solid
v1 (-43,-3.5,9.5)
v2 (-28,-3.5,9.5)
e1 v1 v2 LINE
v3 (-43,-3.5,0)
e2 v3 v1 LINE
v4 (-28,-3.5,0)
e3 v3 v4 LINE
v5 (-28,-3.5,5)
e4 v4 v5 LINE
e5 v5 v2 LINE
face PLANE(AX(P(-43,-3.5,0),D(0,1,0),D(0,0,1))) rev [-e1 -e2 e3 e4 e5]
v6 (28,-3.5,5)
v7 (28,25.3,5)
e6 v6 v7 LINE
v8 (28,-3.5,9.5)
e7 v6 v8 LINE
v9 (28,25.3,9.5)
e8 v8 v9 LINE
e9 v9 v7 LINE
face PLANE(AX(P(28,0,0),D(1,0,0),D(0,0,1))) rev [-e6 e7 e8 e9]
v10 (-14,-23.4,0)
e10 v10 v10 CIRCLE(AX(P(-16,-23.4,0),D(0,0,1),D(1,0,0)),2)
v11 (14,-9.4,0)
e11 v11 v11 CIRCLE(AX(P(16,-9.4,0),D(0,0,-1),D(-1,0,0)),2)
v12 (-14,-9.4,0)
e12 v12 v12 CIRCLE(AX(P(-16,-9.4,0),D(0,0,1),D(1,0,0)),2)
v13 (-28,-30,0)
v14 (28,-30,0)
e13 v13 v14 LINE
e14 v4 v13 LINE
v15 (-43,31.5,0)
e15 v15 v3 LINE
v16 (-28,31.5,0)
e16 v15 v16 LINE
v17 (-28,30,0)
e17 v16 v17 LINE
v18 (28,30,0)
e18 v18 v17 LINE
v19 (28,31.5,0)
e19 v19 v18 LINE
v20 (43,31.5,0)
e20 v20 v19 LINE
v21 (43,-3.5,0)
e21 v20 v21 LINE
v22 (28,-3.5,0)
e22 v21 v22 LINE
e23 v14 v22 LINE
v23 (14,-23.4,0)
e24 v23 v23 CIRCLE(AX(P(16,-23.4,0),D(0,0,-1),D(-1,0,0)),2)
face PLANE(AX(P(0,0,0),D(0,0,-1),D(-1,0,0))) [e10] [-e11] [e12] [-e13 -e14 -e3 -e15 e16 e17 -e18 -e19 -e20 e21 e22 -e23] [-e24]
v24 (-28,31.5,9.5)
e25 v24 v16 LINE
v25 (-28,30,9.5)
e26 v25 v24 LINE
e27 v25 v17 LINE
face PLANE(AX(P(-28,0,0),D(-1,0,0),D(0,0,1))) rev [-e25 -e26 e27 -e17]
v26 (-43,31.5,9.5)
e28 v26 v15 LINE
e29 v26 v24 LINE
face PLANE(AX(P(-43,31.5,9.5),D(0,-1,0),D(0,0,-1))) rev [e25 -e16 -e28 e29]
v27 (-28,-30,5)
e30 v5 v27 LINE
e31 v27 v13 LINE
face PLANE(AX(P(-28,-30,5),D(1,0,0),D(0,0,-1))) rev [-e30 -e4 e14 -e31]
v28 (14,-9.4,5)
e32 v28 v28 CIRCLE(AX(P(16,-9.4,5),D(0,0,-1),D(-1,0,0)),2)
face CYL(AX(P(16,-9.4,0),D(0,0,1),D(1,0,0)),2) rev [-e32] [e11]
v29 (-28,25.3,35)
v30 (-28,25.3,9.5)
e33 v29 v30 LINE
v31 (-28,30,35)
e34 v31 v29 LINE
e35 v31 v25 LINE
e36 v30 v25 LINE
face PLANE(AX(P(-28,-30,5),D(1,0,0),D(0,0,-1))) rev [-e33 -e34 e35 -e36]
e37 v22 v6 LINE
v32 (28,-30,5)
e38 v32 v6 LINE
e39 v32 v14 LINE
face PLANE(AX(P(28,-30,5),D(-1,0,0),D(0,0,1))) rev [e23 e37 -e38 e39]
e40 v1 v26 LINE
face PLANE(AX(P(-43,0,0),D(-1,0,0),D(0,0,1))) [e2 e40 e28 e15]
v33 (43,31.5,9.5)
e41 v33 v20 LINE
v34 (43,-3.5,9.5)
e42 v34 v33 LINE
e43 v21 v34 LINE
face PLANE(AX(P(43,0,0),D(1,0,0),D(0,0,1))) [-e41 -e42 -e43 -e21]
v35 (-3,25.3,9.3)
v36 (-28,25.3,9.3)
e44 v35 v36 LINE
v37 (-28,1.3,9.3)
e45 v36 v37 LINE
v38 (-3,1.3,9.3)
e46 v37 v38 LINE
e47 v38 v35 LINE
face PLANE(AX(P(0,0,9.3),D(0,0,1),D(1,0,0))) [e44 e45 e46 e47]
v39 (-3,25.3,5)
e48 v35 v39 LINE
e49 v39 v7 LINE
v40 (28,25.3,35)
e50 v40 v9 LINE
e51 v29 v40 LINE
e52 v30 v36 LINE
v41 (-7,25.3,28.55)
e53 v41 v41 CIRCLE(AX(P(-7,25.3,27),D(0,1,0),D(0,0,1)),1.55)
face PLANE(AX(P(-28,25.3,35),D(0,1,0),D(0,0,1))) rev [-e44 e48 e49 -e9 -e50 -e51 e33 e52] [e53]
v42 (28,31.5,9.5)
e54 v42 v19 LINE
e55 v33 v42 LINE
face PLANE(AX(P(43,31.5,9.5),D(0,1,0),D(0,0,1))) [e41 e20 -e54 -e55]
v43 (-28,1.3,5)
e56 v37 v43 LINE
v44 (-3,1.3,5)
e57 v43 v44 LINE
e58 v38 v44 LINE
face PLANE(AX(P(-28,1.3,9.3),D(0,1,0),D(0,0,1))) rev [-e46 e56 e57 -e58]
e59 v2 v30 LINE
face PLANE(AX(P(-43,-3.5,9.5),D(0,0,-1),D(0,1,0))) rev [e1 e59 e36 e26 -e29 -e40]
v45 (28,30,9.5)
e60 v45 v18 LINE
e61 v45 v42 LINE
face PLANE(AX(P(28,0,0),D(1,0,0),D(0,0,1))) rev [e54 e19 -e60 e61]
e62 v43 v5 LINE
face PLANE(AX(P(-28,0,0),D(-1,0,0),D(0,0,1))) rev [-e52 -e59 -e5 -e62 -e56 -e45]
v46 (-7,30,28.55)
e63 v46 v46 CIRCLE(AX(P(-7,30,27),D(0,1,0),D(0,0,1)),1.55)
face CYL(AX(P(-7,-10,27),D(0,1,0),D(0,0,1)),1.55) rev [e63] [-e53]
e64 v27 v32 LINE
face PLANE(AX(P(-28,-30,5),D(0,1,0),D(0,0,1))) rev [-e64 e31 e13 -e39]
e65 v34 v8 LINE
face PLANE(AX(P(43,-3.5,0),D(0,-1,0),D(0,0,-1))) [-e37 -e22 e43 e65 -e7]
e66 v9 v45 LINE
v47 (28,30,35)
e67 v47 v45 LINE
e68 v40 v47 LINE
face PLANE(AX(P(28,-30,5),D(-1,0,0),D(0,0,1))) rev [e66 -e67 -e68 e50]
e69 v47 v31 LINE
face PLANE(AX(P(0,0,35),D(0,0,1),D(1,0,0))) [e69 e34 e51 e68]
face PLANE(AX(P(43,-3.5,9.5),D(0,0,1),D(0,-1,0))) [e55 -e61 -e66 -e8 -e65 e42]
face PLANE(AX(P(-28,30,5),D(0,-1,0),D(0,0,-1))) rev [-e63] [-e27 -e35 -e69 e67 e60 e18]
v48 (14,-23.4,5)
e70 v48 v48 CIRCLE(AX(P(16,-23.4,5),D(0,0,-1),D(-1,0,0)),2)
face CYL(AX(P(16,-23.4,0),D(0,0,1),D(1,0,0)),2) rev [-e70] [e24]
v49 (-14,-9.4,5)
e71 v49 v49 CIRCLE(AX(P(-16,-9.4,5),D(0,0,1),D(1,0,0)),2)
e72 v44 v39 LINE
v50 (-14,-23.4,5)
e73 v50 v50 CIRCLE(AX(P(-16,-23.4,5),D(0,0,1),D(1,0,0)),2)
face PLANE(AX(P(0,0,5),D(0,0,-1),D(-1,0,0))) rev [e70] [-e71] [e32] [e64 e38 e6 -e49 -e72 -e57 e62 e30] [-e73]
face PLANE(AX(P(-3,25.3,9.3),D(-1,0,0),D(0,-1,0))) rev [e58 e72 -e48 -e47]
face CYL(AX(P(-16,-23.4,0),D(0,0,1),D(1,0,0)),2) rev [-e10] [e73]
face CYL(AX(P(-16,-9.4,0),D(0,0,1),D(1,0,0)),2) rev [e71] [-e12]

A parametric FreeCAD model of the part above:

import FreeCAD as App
import Part
import Sketcher


def add_polygon(sketch, points):
    """Adds a closed chain of lines whose ends are joined by coincident constraints."""
    first, n = sketch.GeometryCount, len(points)
    for a, b in zip(points, points[1:] + points[:1]):
        sketch.addGeometry(Part.LineSegment(App.Vector(*a, 0), App.Vector(*b, 0)), False)
    for i in range(n):
        sketch.addConstraint(Sketcher.Constraint("Coincident", first + i, 2, first + (i + 1) % n, 1))

doc = App.newDocument("Part")
body = doc.addObject("PartDesign::Body", "Body")

sketch1 = body.newObject("Sketcher::SketchObject", "Sketch")
sketch1.AttachmentSupport = (doc.getObject("XY_Plane"), [""])
sketch1.MapMode = "FlatFace"
add_polygon(sketch1, [(-28, 30), (-28, -30), (28, -30), (28, 30)])
sketch1.addConstraint([
    Sketcher.Constraint("Vertical", 0),
    Sketcher.Constraint("Horizontal", 1),
    Sketcher.Constraint("Vertical", 2),
    Sketcher.Constraint("Horizontal", 3),
    Sketcher.Constraint("Symmetric", 0, 2, 2, 2, -1, 1),
    Sketcher.Constraint("DistanceX", 1, 1, 1, 2, 56.0),
    Sketcher.Constraint("DistanceY", 0, 2, 0, 1, 60.0),
])
pad1 = body.newObject("PartDesign::Pad", "Pad")
pad1.Profile = sketch1
pad1.Length = 5

sketch2 = body.newObject("Sketcher::SketchObject", "Sketch001")
sketch2.AttachmentSupport = (doc.getObject("XY_Plane"), [""])
sketch2.MapMode = "FlatFace"
sketch2.AttachmentOffset = App.Placement(App.Vector(0, 0, 5), App.Rotation())
sketch2.addGeometry([
    Part.Circle(App.Vector(-16, -23.4, 0), App.Vector(0, 0, 1), 2),
    Part.Circle(App.Vector(-16, -9.4, 0), App.Vector(0, 0, 1), 2),
], False)
sketch2.addConstraint([
    Sketcher.Constraint("Equal", 0, 1),
    Sketcher.Constraint("Vertical", 0, 3, 1, 3),
    Sketcher.Constraint("Diameter", 0, 4.0),
    Sketcher.Constraint("DistanceX", 0, 3, -1, 1, 16.0),
    Sketcher.Constraint("DistanceY", 0, 3, 1, 3, 14.0),
    Sketcher.Constraint("DistanceY", 0, 3, -1, 1, 23.4),
])
pocket1 = body.newObject("PartDesign::Pocket", "Pocket")
pocket1.Profile = sketch2
pocket1.Length = 5
doc.recompute()

mirrored = body.newObject("PartDesign::Mirrored", "Mirrored")
mirrored.Originals = [pocket1]
mirrored.MirrorPlane = (doc.getObject("YZ_Plane"), [""])
body.Tip = mirrored

sketch3 = body.newObject("Sketcher::SketchObject", "Sketch002")
sketch3.AttachmentSupport = (doc.getObject("XY_Plane"), [""])
sketch3.MapMode = "FlatFace"
sketch3.AttachmentOffset = App.Placement(App.Vector(0, 0, 5), App.Rotation())
add_polygon(sketch3, [(-28, 30), (-28, 25.3), (28, 25.3), (28, 30)])
sketch3.addConstraint([
    Sketcher.Constraint("Vertical", 0),
    Sketcher.Constraint("Horizontal", 1),
    Sketcher.Constraint("Vertical", 2),
    Sketcher.Constraint("Horizontal", 3),
    Sketcher.Constraint("DistanceX", 1, 1, 1, 2, 56.0),
    Sketcher.Constraint("DistanceY", 0, 2, 0, 1, 4.7),
    Sketcher.Constraint("DistanceX", 0, 2, -1, 1, 28.0),
    Sketcher.Constraint("DistanceY", -1, 1, 2, 2, 30.0),
])
pad2 = body.newObject("PartDesign::Pad", "Pad001")
pad2.Profile = sketch3
pad2.Length = 30

sketch4 = body.newObject("Sketcher::SketchObject", "Sketch003")
sketch4.AttachmentSupport = (doc.getObject("XZ_Plane"), [""])
sketch4.MapMode = "FlatFace"
sketch4.AttachmentOffset = App.Placement(App.Vector(0, 0, -30), App.Rotation())
sketch4.addGeometry(Part.Circle(App.Vector(-7, 27, 0), App.Vector(0, 0, 1), 1.6), False)
sketch4.addConstraint([
    Sketcher.Constraint("Diameter", 0, 3.1),
    Sketcher.Constraint("DistanceX", 0, 3, -1, 1, 7.0),
    Sketcher.Constraint("DistanceY", -1, 1, 0, 3, 27.0),
])
pocket2 = body.newObject("PartDesign::Pocket", "Pocket001")
pocket2.Profile = sketch4
pocket2.Length = 40
pocket2.Reversed = True

sketch5 = body.newObject("Sketcher::SketchObject", "Sketch004")
sketch5.AttachmentSupport = (doc.getObject("XY_Plane"), [""])
sketch5.MapMode = "FlatFace"
sketch5.AttachmentOffset = App.Placement(App.Vector(0, 0, 5), App.Rotation())
add_polygon(sketch5, [(-28, 25), (-28, 1), (-3, 1), (-3, 25)])
sketch5.addConstraint([
    Sketcher.Constraint("Vertical", 0),
    Sketcher.Constraint("Horizontal", 1),
    Sketcher.Constraint("Vertical", 2),
    Sketcher.Constraint("Horizontal", 3),
    Sketcher.Constraint("DistanceX", 1, 1, 1, 2, 25.0),
    Sketcher.Constraint("DistanceY", 0, 2, 0, 1, 24.0),
    Sketcher.Constraint("DistanceX", 0, 2, -1, 1, 28.0),
    Sketcher.Constraint("DistanceY", -1, 1, 0, 2, 1.3),
])
pad3 = body.newObject("PartDesign::Pad", "Pad002")
pad3.Profile = sketch5
pad3.Length = 4.3

sketch6 = body.newObject("Sketcher::SketchObject", "Sketch005")
sketch6.AttachmentSupport = (doc.getObject("YZ_Plane"), [""])
sketch6.MapMode = "FlatFace"
sketch6.AttachmentOffset = App.Placement(App.Vector(0, 0, -28), App.Rotation())
add_polygon(sketch6, [(-4, 0), (-4, 10), (32, 10), (32, 0)])
sketch6.addConstraint([
    Sketcher.Constraint("Vertical", 0),
    Sketcher.Constraint("Horizontal", 1),
    Sketcher.Constraint("Vertical", 2),
    Sketcher.Constraint("Horizontal", 3),
    Sketcher.Constraint("PointOnObject", 2, 2, -1),
    Sketcher.Constraint("DistanceX", 1, 1, 1, 2, 35.0),
    Sketcher.Constraint("DistanceY", 0, 1, 0, 2, 9.5),
    Sketcher.Constraint("DistanceX", 0, 2, -1, 1, 3.5),
])
pad4 = body.newObject("PartDesign::Pad", "Pad003")
pad4.Profile = sketch6
pad4.Length = 15
pad4.Reversed = True
doc.recompute()

mirrored2 = body.newObject("PartDesign::Mirrored", "Mirrored001")
mirrored2.Originals = [pad4]
mirrored2.MirrorPlane = (doc.getObject("YZ_Plane"), [""])
body.Tip = mirrored2

doc.recompute()
